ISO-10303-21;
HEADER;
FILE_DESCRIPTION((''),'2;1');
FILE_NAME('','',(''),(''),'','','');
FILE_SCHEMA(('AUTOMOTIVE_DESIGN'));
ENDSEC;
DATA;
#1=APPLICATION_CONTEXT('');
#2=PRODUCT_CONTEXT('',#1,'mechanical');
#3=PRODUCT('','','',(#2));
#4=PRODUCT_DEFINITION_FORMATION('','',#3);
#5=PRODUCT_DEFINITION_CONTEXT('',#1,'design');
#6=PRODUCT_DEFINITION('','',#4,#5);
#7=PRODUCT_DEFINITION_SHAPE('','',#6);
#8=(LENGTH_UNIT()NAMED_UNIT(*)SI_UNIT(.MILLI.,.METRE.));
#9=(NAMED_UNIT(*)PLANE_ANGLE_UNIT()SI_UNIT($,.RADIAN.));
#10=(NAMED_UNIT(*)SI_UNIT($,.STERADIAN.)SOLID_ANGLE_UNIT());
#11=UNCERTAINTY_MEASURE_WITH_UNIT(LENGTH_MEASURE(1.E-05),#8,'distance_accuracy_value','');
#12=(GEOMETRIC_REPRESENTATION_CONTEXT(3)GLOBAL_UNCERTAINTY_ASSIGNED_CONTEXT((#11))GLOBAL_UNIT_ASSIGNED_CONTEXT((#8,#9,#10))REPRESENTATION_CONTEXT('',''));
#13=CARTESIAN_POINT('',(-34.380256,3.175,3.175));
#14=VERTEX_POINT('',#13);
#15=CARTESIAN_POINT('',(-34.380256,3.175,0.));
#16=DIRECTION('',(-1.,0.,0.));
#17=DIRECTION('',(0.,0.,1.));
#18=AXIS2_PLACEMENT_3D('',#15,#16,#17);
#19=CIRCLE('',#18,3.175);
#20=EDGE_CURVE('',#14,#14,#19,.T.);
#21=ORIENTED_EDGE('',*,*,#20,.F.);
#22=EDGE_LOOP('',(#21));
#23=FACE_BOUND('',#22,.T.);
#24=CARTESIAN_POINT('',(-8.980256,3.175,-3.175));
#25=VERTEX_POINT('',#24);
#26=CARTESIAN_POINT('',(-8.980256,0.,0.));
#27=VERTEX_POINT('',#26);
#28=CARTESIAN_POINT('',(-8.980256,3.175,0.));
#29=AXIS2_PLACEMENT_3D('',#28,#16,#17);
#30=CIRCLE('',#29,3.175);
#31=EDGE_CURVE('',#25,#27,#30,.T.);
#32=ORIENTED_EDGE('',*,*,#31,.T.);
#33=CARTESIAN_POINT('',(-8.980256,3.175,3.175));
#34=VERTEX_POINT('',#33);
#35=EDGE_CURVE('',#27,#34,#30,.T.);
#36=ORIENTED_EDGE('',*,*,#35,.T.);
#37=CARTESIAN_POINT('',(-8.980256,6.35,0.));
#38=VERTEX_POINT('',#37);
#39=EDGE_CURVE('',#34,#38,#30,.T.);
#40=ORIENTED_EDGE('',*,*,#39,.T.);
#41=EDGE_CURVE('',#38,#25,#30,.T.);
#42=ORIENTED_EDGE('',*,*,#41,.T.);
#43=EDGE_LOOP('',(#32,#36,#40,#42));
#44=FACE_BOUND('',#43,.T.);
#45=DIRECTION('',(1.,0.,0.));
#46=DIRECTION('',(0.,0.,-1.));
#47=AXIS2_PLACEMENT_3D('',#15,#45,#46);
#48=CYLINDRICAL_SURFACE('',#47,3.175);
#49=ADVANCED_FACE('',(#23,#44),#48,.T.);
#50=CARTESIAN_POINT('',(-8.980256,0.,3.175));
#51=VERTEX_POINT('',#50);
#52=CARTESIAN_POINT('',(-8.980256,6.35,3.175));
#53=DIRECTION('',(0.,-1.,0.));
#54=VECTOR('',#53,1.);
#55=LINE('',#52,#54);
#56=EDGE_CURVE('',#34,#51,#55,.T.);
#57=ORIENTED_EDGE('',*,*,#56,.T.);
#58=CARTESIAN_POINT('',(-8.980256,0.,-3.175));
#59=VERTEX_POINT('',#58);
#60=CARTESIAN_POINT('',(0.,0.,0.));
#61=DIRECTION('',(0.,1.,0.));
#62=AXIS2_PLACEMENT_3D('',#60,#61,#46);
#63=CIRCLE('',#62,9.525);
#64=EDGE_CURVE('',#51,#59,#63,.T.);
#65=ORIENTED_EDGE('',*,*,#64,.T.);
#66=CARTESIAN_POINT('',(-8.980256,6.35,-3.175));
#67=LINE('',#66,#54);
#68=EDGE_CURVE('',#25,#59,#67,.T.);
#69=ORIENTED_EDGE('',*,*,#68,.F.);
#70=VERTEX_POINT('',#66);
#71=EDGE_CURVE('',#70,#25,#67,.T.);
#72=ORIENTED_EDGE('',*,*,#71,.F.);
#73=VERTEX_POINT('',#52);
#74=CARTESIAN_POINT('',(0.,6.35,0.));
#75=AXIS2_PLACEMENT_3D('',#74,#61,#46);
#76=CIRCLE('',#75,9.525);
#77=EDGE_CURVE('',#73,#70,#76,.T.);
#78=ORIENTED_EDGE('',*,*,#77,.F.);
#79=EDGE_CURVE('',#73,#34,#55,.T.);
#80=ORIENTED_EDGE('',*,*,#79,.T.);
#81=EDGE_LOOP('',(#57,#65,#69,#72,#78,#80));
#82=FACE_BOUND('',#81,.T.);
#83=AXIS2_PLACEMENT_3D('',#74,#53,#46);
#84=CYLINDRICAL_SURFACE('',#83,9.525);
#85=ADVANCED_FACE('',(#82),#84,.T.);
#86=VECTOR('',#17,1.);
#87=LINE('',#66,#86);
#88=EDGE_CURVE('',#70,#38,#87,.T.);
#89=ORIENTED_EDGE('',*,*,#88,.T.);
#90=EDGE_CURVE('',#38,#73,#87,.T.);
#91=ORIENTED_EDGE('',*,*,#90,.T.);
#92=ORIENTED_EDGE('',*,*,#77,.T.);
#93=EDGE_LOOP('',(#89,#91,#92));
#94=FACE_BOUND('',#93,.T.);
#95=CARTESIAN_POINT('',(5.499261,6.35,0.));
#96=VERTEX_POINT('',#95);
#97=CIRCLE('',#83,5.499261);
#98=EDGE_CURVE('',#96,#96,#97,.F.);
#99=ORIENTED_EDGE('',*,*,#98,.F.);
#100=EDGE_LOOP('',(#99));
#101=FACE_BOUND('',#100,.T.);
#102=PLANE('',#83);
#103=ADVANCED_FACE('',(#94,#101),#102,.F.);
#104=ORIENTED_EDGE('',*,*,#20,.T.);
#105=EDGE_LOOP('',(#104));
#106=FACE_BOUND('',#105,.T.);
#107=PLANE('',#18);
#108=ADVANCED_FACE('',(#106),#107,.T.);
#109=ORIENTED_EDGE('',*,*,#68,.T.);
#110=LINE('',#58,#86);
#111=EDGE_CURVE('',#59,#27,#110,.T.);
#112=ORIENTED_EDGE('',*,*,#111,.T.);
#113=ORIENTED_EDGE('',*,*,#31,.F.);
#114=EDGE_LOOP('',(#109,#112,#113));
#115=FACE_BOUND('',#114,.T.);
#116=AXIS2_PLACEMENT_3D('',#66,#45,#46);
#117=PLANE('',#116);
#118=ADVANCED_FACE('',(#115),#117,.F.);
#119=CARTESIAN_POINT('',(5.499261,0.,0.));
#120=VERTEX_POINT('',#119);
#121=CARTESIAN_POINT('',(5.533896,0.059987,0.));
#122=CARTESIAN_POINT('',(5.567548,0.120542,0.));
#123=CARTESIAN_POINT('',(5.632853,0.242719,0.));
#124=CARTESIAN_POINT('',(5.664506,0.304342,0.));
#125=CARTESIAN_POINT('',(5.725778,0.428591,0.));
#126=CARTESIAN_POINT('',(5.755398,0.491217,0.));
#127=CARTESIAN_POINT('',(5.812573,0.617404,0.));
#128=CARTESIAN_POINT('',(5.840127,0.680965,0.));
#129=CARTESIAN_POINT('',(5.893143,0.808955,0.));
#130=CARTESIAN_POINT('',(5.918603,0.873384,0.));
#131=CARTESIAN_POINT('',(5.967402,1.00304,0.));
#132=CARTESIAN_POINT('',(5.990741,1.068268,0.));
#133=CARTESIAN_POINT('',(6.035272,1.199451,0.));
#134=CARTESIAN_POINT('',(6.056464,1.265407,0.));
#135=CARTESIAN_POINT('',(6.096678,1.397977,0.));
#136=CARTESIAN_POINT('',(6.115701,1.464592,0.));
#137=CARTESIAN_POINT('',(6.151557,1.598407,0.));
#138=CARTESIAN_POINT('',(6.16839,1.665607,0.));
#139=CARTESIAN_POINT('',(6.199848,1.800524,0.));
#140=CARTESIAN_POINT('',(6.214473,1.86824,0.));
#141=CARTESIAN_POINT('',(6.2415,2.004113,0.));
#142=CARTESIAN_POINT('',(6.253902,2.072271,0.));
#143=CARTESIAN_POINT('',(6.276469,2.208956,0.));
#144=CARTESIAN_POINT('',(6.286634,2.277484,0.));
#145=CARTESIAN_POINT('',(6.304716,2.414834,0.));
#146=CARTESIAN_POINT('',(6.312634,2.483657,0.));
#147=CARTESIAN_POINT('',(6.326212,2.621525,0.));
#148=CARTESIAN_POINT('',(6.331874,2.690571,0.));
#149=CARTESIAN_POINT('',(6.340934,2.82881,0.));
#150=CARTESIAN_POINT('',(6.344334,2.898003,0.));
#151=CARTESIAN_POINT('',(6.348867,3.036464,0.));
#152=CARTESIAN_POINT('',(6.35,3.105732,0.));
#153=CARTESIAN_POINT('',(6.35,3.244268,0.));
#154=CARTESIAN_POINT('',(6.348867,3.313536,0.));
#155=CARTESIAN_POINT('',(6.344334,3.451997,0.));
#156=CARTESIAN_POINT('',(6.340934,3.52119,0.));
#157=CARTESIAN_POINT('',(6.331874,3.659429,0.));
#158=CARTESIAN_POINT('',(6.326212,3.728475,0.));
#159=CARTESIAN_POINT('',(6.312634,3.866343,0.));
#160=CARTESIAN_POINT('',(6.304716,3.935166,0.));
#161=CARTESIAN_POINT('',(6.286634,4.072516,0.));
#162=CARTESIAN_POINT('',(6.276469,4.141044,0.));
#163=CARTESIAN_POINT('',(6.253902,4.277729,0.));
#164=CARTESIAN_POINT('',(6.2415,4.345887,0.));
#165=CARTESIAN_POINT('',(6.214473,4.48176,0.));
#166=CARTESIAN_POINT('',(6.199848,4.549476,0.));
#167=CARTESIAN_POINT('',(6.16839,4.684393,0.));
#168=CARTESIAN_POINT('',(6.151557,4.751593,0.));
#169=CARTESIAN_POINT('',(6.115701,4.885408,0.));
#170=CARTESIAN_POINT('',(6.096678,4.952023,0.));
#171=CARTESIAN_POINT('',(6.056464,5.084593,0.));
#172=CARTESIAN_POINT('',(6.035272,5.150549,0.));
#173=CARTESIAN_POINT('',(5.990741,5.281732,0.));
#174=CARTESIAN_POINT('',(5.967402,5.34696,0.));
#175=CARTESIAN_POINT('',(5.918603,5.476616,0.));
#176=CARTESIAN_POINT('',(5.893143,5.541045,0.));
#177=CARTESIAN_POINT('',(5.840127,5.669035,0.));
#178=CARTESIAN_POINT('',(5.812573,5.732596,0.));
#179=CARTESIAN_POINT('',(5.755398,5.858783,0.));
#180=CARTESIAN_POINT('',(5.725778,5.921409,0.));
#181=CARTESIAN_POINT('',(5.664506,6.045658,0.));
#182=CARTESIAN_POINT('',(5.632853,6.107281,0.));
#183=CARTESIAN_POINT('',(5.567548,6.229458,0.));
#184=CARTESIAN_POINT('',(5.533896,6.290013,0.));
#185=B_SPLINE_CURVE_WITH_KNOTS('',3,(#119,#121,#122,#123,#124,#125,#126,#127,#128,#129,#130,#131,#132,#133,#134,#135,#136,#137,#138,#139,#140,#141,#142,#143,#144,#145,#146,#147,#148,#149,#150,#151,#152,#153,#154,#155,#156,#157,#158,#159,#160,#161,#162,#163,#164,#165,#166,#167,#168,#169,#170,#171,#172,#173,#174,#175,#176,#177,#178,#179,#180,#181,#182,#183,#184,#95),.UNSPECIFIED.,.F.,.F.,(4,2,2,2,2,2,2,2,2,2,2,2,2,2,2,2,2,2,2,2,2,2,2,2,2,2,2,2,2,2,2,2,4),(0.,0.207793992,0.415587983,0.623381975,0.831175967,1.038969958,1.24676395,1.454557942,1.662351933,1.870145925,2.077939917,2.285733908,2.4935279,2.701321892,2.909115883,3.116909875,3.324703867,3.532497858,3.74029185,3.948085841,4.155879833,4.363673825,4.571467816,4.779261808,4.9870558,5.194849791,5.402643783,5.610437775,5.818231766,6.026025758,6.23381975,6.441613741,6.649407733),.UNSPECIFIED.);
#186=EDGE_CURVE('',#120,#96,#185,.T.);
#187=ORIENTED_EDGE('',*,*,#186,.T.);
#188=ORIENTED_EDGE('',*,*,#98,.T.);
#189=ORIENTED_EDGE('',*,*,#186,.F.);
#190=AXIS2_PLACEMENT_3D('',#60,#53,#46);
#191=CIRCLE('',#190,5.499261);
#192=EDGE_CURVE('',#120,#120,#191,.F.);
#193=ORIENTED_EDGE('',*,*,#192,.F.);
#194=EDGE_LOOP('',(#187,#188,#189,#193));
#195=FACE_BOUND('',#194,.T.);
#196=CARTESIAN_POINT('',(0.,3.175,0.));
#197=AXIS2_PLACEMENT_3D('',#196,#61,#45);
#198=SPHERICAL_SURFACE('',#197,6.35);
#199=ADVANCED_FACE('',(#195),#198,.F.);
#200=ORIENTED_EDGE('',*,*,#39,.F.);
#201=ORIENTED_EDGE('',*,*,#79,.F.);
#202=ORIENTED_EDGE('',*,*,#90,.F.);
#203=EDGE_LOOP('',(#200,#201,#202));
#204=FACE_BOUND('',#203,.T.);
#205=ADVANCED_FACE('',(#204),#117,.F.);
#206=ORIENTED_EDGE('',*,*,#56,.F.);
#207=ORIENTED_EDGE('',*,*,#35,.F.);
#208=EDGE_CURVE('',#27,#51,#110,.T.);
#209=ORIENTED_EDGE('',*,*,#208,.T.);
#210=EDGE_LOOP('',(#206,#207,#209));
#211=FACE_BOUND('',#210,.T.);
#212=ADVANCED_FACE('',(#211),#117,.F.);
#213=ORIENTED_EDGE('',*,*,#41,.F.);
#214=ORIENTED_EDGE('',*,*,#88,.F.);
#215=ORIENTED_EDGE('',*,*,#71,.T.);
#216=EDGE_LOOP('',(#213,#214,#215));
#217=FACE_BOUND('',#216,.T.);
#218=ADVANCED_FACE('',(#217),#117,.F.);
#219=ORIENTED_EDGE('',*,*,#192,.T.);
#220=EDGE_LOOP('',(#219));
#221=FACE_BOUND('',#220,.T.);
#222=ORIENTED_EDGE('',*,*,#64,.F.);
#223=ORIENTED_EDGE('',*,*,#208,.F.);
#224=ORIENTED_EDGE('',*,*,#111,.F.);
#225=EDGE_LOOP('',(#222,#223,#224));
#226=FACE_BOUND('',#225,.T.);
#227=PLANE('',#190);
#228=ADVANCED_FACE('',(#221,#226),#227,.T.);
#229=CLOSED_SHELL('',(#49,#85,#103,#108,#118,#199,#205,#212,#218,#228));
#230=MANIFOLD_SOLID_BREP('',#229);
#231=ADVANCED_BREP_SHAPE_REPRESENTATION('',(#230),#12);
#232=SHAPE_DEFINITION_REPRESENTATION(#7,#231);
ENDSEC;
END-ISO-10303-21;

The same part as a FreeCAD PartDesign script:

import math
import FreeCAD as App
import Part
import Sketcher

V = App.Vector
Q = App.Units.Quantity

doc = App.newDocument("Part")
body = doc.addObject("PartDesign::Body", "Body")

# Sketch on XZ plane
sketch1 = body.newObject("Sketcher::SketchObject", "Sketch")
sketch1.AttachmentSupport = (doc.getObject("XZ_Plane"), [""])
sketch1.MapMode = "FlatFace"
sketch1.addGeometry([
    Part.LineSegment(V(-9, -3, 0), V(-9, 3, 0)),
    Part.ArcOfCircle(Part.Circle(V(0, 0, 0), V(0, 0, 1), 10), math.radians(-161), math.radians(161)),
], False)
sketch1.addConstraint([
    Sketcher.Constraint("Coincident", 0, 1, 1, 1),
    Sketcher.Constraint("Coincident", 1, 2, 0, 2),
    Sketcher.Constraint("Vertical", 0),
    Sketcher.Constraint("Coincident", 1, 3, -1, 1),
    Sketcher.Constraint("Radius", 1, Q("0.375 in")),
    Sketcher.Constraint("DistanceY", 0, 1, 0, 2, Q("0.25 in")),
])
pad1 = body.newObject("PartDesign::Pad", "Pad")
pad1.Profile = sketch1
pad1.Length = Q("0.25 in")
pad1.Reversed = True

# Sketch on YZ plane
sketch2 = body.newObject("Sketcher::SketchObject", "Sketch001")
sketch2.AttachmentSupport = (doc.getObject("YZ_Plane"), [""])
sketch2.MapMode = "FlatFace"
sketch2.AttachmentOffset = App.Placement(V(0, 0, -8.980256), App.Rotation())
sketch2.addGeometry(Part.Circle(V(3.2, 0, 0), V(0, 0, 1), 3.2), False)
sketch2.addConstraint([
    Sketcher.Constraint("PointOnObject", 0, 3, -1),
    Sketcher.Constraint("Diameter", 0, Q("0.25 in")),
    Sketcher.Constraint("DistanceX", -1, 1, 0, 3, Q("0.125 in")),
])
pad2 = body.newObject("PartDesign::Pad", "Pad001")
pad2.Profile = sketch2
pad2.Length = Q("1 in")
pad2.Reversed = True

# Sketch on XY plane
sketch3 = body.newObject("Sketcher::SketchObject", "Sketch002")
sketch3.AttachmentSupport = (doc.getObject("XY_Plane"), [""])
sketch3.MapMode = "FlatFace"
sketch3.addGeometry([
    Part.LineSegment(V(0, 10, 0), V(0, -3, 0)),
    Part.ArcOfCircle(Part.Circle(V(0, 3, 0), V(0, 0, 1), 6), math.radians(-90), math.radians(90)),
], False)
sketch3.addConstraint([
    Sketcher.Constraint("Coincident", 0, 1, 1, 2),
    Sketcher.Constraint("Coincident", 1, 1, 0, 2),
    Sketcher.Constraint("Vertical", 0),
    Sketcher.Constraint("PointOnObject", 1, 3, -2),
    Sketcher.Constraint("PointOnObject", 0, 1, -2),
    Sketcher.Constraint("Radius", 1, Q("0.25 in")),
    Sketcher.Constraint("DistanceY", -1, 1, 1, 3, Q("0.125 in")),
])
groove = body.newObject("PartDesign::Groove", "Groove")
groove.Profile = sketch3
groove.ReferenceAxis = (sketch3, ["V_Axis"])
groove.Angle = 360

doc.recompute()
